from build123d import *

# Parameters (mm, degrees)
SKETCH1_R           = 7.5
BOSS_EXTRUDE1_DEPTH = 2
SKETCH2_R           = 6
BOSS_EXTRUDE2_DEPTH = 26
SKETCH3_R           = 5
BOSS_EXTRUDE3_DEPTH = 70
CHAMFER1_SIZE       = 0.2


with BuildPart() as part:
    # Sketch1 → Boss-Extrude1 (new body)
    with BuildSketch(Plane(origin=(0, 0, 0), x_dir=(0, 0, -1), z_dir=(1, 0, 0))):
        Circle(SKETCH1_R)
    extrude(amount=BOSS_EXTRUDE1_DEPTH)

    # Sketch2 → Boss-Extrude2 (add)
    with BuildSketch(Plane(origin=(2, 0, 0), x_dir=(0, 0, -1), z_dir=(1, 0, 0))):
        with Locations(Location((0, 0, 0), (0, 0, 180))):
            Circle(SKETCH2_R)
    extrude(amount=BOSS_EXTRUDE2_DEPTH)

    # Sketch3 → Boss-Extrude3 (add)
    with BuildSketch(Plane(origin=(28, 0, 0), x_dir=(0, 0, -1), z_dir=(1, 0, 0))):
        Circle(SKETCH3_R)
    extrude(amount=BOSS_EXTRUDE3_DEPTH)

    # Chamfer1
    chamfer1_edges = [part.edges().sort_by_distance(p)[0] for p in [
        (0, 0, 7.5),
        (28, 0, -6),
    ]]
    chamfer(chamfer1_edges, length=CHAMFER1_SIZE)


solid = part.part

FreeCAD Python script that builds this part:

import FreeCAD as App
import Part
import Sketcher

V = App.Vector


def edges_at(feature, points):
    """Names of the edges that pass closest to the given points."""
    edges = feature.Shape.Edges
    near = lambda p: min(range(len(edges)), key=lambda i: edges[i].distToShape(Part.Vertex(*p))[0])
    return sorted({f"Edge{near(p) + 1}" for p in points})

doc = App.newDocument("Part")
params = doc.addObject("Spreadsheet::Sheet", "Params")
for row, (alias, value) in enumerate([
    ("sketch1_diameter", "15 mm"),
    ("pad1_length", "2 mm"),
    ("sketch2_diameter", "12 mm"),
    ("pad2_length", "26 mm"),
    ("sketch3_diameter", "10 mm"),
    ("pad3_length", "70 mm"),
    ("chamfer_size", "0.2 mm"),
], start=1):
    params.set(f"A{row}", alias)
    params.set(f"B{row}", "=" + value)
    params.setAlias(f"B{row}", alias)

body = doc.addObject("PartDesign::Body", "Body")

sketch1 = doc.addObject("Sketcher::SketchObject", "Sketch")
body.addObject(sketch1)
sketch1.AttachmentSupport = (doc.YZ_Plane, [""])
sketch1.MapMode = "FlatFace"
sketch1.addGeometry(Part.Circle(V(0, 0, 0), V(0, 0, 1), 8), False)
sketch1.addConstraint(Sketcher.Constraint("Coincident", 0, 3, -1, 1))
sketch1.addConstraint(Sketcher.Constraint("Diameter", 0, 15.0))
sketch1.setExpression("Constraints[1]", "Params.sketch1_diameter")
pad1 = doc.addObject("PartDesign::Pad", "Pad")
body.addObject(pad1)
pad1.Profile = sketch1
pad1.setExpression("Length", "Params.pad1_length")

sketch2 = doc.addObject("Sketcher::SketchObject", "Sketch001")
body.addObject(sketch2)
sketch2.AttachmentSupport = (doc.YZ_Plane, [""])
sketch2.MapMode = "FlatFace"
sketch2.AttachmentOffset = App.Placement(V(0, 0, 2), App.Rotation())
sketch2.addGeometry(Part.Circle(V(0, 0, 0), V(0, 0, 1), 6), False)
sketch2.addConstraint(Sketcher.Constraint("Coincident", 0, 3, -1, 1))
sketch2.addConstraint(Sketcher.Constraint("Diameter", 0, 12.0))
sketch2.setExpression("Constraints[1]", "Params.sketch2_diameter")
pad2 = doc.addObject("PartDesign::Pad", "Pad001")
body.addObject(pad2)
pad2.Profile = sketch2
pad2.setExpression("Length", "Params.pad2_length")

sketch3 = doc.addObject("Sketcher::SketchObject", "Sketch002")
body.addObject(sketch3)
sketch3.AttachmentSupport = (doc.YZ_Plane, [""])
sketch3.MapMode = "FlatFace"
sketch3.AttachmentOffset = App.Placement(V(0, 0, 28), App.Rotation())
sketch3.addGeometry(Part.Circle(V(0, 0, 0), V(0, 0, 1), 5), False)
sketch3.addConstraint(Sketcher.Constraint("Coincident", 0, 3, -1, 1))
sketch3.addConstraint(Sketcher.Constraint("Diameter", 0, 10.0))
sketch3.setExpression("Constraints[1]", "Params.sketch3_diameter")
pad3 = doc.addObject("PartDesign::Pad", "Pad002")
body.addObject(pad3)
pad3.Profile = sketch3
pad3.setExpression("Length", "Params.pad3_length")
doc.recompute()

chamfer = doc.addObject("PartDesign::Chamfer", "Chamfer")
body.addObject(chamfer)
chamfer.Base = (pad3, edges_at(pad3, [(0, 0, 7.5), (28, 0, -6)]))
chamfer.setExpression("Size", "Params.chamfer_size")

doc.recompute()
